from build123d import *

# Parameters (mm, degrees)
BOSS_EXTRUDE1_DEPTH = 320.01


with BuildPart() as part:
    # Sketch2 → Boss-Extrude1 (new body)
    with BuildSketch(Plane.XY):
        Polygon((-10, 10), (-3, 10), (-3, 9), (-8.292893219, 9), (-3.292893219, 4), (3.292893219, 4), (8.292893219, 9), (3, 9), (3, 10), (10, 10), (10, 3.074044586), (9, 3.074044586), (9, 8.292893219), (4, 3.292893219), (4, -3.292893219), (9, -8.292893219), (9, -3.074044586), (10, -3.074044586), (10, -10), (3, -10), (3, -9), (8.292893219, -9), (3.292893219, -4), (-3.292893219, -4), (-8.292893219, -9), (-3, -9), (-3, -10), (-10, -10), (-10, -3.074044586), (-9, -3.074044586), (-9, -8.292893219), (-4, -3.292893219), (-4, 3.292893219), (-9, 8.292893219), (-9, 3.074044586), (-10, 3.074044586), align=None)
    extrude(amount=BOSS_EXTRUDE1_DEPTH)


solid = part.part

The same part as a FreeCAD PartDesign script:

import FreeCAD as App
import Part
import Sketcher
from FreeCAD import Vector
Q = App.Units.Quantity


def add_polygon(sketch, points):
    """Adds a closed chain of lines whose ends are joined by coincident constraints."""
    first, n = sketch.GeometryCount, len(points)
    for a, b in zip(points, points[1:] + points[:1]):
        sketch.addGeometry(Part.LineSegment(App.Vector(*a, 0), App.Vector(*b, 0)), False)
    for i in range(n):
        sketch.addConstraint(Sketcher.Constraint("Coincident", first + i, 2, first + (i + 1) % n, 1))

doc = App.newDocument("Part")
body = doc.addObject("PartDesign::Body", "Body")

# Sketch on XY plane
sketch1 = body.newObject("Sketcher::SketchObject", "Sketch")
sketch1.AttachmentSupport = (doc.getObject("XY_Plane"), [""])
sketch1.MapMode = "FlatFace"
add_polygon(sketch1, [(-3, 10), (-10, 10), (-10, 3.1), (-9, 3.1), (-9, 8.3), (-4, 3.3), (-4, -3.3), (-9, -8.3), (-9, -3.1), (-10, -3.1), (-10, -10), (-3, -10), (-3, -9), (-8.3, -9), (-3.3, -4), (3.3, -4), (8.3, -9), (3, -9), (3, -10), (10, -10), (10, -3.1), (9, -3.1), (9, -8.3), (4, -3.3), (4, 3.3), (9, 8.3), (9, 3.1), (10, 3.1), (10, 10), (3, 10), (3, 9), (8.3, 9), (3.3, 4), (-3.3, 4), (-8.3, 9), (-3, 9)])  # lines 0-35
sketch1.addConstraint(Sketcher.Constraint("Horizontal", 0))
sketch1.addConstraint(Sketcher.Constraint("Vertical", 1))
sketch1.addConstraint(Sketcher.Constraint("Horizontal", 2))
sketch1.addConstraint(Sketcher.Constraint("Vertical", 3))
sketch1.addConstraint(Sketcher.Constraint("Vertical", 5))
sketch1.addConstraint(Sketcher.Constraint("Vertical", 7))
sketch1.addConstraint(Sketcher.Constraint("Horizontal", 8))
sketch1.addConstraint(Sketcher.Constraint("Vertical", 9))
sketch1.addConstraint(Sketcher.Constraint("Horizontal", 10))
sketch1.addConstraint(Sketcher.Constraint("Vertical", 11))
sketch1.addConstraint(Sketcher.Constraint("Horizontal", 12))
sketch1.addConstraint(Sketcher.Constraint("Horizontal", 14))
sketch1.addConstraint(Sketcher.Constraint("Horizontal", 16))
sketch1.addConstraint(Sketcher.Constraint("Vertical", 17))
sketch1.addConstraint(Sketcher.Constraint("Horizontal", 18))
sketch1.addConstraint(Sketcher.Constraint("Vertical", 19))
sketch1.addConstraint(Sketcher.Constraint("Horizontal", 20))
sketch1.addConstraint(Sketcher.Constraint("Vertical", 21))
sketch1.addConstraint(Sketcher.Constraint("Vertical", 23))
sketch1.addConstraint(Sketcher.Constraint("Vertical", 25))
sketch1.addConstraint(Sketcher.Constraint("Horizontal", 26))
sketch1.addConstraint(Sketcher.Constraint("Vertical", 27))
sketch1.addConstraint(Sketcher.Constraint("Horizontal", 28))
sketch1.addConstraint(Sketcher.Constraint("Vertical", 29))
sketch1.addConstraint(Sketcher.Constraint("Horizontal", 30))
sketch1.addConstraint(Sketcher.Constraint("Horizontal", 32))
sketch1.addConstraint(Sketcher.Constraint("Horizontal", 34))
sketch1.addConstraint(Sketcher.Constraint("Vertical", 35))
sketch1.addConstraint(Sketcher.Constraint("Symmetric", 0, 2, 18, 2, -1, 1))
sketch1.addConstraint(Sketcher.Constraint("Symmetric", 2, 2, 20, 2, -1, 1))
sketch1.addConstraint(Sketcher.Constraint("Symmetric", 4, 2, 22, 2, -1, 1))
sketch1.addConstraint(Sketcher.Constraint("Symmetric", 6, 2, 24, 2, -1, 1))
sketch1.addConstraint(Sketcher.Constraint("Symmetric", 8, 2, 26, 2, -1, 1))
sketch1.addConstraint(Sketcher.Constraint("Symmetric", 10, 2, 28, 2, -1, 1))
sketch1.addConstraint(Sketcher.Constraint("Symmetric", 12, 2, 30, 2, -1, 1))
sketch1.addConstraint(Sketcher.Constraint("Symmetric", 13, 2, 31, 2, -1, 1))
sketch1.addConstraint(Sketcher.Constraint("Symmetric", 15, 2, 33, 2, -1, 1))
sketch1.addConstraint(Sketcher.Constraint("Symmetric", 12, 2, 15, 2, -2))
sketch1.addConstraint(Sketcher.Constraint("Symmetric", 10, 2, 17, 2, -2))
sketch1.addConstraint(Sketcher.Constraint("Symmetric", 8, 2, 19, 2, -2))
sketch1.addConstraint(Sketcher.Constraint("Symmetric", 6, 2, 21, 2, -2))
sketch1.addConstraint(Sketcher.Constraint("Perpendicular", 4, 6))
sketch1.addConstraint(Sketcher.Constraint("Parallel", 6, 13))
sketch1.addConstraint(Sketcher.Constraint("Perpendicular", 13, 15))
sketch1.addConstraint(Sketcher.Constraint("Parallel", 15, 22))
sketch1.addConstraint(Sketcher.Constraint("Perpendicular", 22, 24))
sketch1.addConstraint(Sketcher.Constraint("Perpendicular", 31, 33))
sketch1.addConstraint(Sketcher.Constraint("Horizontal", 5, 2, 22, 2))
sketch1.addConstraint(Sketcher.Constraint("Vertical", 11, 2, 34, 2))
sketch1.addConstraint(Sketcher.Constraint("Equal", 32, 5))
sketch1.addConstraint(Sketcher.Constraint("Equal", 26, 11))
sketch1.addConstraint(Sketcher.Constraint("Equal", 6, 13))
sketch1.addConstraint(Sketcher.Constraint("DistanceX", 0, 2, 0, 1, Q("7 mm")))
sketch1.addConstraint(Sketcher.Constraint("DistanceX", 2, 1, 2, 2, Q("1 mm")))
sketch1.addConstraint(Sketcher.Constraint("DistanceX", 0, 2, -1, 1, Q("10 mm")))
sketch1.addConstraint(Sketcher.Constraint("DistanceY", -1, 1, 0, 2, Q("10 mm")))
sketch1.addConstraint(Sketcher.Constraint("DistanceX", 4, 2, -1, 1, Q("4 mm")))
sketch1.addConstraint(Sketcher.Constraint("DistanceY", 3, 1, 3, 2, Q("5.218849 mm")))
sketch1.addConstraint(Sketcher.Constraint("DistanceX", 12, 2, 12, 1, Q("5.292893 mm")))
pad1 = body.newObject("PartDesign::Pad", "Pad")
pad1.Profile = sketch1
pad1.Length = 320.01

doc.recompute()
